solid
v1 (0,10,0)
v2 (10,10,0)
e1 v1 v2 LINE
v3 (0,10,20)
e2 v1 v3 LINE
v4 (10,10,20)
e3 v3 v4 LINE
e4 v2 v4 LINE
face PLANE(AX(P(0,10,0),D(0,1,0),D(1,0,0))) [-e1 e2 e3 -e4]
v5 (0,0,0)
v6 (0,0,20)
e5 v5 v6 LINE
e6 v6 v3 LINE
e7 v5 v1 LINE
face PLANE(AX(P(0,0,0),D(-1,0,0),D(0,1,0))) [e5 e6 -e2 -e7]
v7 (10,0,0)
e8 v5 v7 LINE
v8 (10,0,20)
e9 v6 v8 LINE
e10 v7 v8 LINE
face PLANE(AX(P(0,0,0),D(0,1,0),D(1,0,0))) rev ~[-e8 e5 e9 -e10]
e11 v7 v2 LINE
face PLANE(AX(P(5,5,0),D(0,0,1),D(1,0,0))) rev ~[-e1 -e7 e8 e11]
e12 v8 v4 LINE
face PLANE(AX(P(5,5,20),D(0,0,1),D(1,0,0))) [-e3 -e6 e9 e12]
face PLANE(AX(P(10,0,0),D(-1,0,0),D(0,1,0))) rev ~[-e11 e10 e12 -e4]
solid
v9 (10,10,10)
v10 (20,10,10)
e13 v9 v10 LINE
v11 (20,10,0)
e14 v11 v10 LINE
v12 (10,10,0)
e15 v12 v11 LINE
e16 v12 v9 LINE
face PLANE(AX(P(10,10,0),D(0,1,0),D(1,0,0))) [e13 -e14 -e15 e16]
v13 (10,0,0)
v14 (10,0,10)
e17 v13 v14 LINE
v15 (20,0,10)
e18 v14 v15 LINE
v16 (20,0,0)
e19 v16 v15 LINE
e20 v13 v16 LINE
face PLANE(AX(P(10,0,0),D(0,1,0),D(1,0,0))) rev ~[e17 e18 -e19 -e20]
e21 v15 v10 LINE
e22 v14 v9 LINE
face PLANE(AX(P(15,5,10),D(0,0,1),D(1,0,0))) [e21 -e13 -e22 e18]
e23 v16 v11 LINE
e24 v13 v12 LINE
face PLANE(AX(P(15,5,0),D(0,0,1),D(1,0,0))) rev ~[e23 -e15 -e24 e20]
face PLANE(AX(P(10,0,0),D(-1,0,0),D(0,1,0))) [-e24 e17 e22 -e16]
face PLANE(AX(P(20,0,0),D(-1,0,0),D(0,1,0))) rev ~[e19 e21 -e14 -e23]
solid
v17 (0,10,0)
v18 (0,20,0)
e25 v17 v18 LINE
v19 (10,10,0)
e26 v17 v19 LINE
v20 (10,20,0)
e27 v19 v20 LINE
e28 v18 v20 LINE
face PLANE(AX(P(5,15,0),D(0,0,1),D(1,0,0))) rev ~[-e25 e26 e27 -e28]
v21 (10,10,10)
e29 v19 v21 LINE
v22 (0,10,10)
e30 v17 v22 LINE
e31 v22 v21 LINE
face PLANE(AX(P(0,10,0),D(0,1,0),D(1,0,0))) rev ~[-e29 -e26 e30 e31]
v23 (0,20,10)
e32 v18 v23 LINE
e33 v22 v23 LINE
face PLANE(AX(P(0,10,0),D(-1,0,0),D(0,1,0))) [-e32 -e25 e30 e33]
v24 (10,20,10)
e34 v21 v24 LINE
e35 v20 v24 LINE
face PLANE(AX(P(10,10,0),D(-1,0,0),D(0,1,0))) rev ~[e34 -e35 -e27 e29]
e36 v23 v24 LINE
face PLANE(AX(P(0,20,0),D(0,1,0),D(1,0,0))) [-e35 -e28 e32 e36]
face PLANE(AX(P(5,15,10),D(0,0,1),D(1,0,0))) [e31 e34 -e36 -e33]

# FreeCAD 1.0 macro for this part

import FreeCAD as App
import Part
import Sketcher

V = App.Vector


def add_polygon(sketch, points):
    """Adds a closed chain of lines whose ends are joined by coincident constraints."""
    first, n = sketch.GeometryCount, len(points)
    for a, b in zip(points, points[1:] + points[:1]):
        sketch.addGeometry(Part.LineSegment(App.Vector(*a, 0), App.Vector(*b, 0)), False)
    for i in range(n):
        sketch.addConstraint(Sketcher.Constraint("Coincident", first + i, 2, first + (i + 1) % n, 1))

doc = App.newDocument("Part")
body = doc.addObject("PartDesign::Body", "Body")

# Sketch on XY plane
sketch1 = body.newObject("Sketcher::SketchObject", "Sketch")
sketch1.AttachmentSupport = (doc.getObject("XY_Plane"), [""])
sketch1.MapMode = "FlatFace"
add_polygon(sketch1, [(0, 10), (0, 0), (10, 0), (10, 10)])  # lines 0-3
sketch1.addConstraint([
    Sketcher.Constraint("Vertical", 0),
    Sketcher.Constraint("Horizontal", 1),
    Sketcher.Constraint("Vertical", 2),
    Sketcher.Constraint("Horizontal", 3),
    Sketcher.Constraint("Coincident", 0, 2, -1, 1),
    Sketcher.Constraint("Equal", 3, 0),
    Sketcher.Constraint("DistanceX", 1, 1, 1, 2, 10.0),
])
pad1 = body.newObject("PartDesign::Pad", "Pad")
pad1.Profile = sketch1
pad1.Length = 20
body2 = doc.addObject("PartDesign::Body", "Body001")

# Sketch on XY plane
sketch2 = body2.newObject("Sketcher::SketchObject", "Sketch001")
sketch2.AttachmentSupport = (doc.getObject("XY_Plane001"), [""])
sketch2.MapMode = "FlatFace"
add_polygon(sketch2, [(10, 10), (10, 0), (20, 0), (20, 10)])  # lines 0-3
sketch2.addConstraint([
    Sketcher.Constraint("Vertical", 0),
    Sketcher.Constraint("Horizontal", 1),
    Sketcher.Constraint("Vertical", 2),
    Sketcher.Constraint("Horizontal", 3),
    Sketcher.Constraint("PointOnObject", 0, 2, -1),
    Sketcher.Constraint("Equal", 3, 0),
    Sketcher.Constraint("DistanceX", 1, 1, 1, 2, 10.0),
    Sketcher.Constraint("DistanceX", -1, 1, 0, 2, 10.0),
])
pad2 = body2.newObject("PartDesign::Pad", "Pad001")
pad2.Profile = sketch2
pad2.Length = 10
body3 = doc.addObject("PartDesign::Body", "Body002")

# Sketch on XY plane
sketch3 = body3.newObject("Sketcher::SketchObject", "Sketch002")
sketch3.AttachmentSupport = (doc.getObject("XY_Plane002"), [""])
sketch3.MapMode = "FlatFace"
add_polygon(sketch3, [(0, 20), (0, 10), (10, 10), (10, 20)])  # lines 0-3
sketch3.addConstraint([
    Sketcher.Constraint("Vertical", 0),
    Sketcher.Constraint("Horizontal", 1),
    Sketcher.Constraint("Vertical", 2),
    Sketcher.Constraint("Horizontal", 3),
    Sketcher.Constraint("PointOnObject", 0, 2, -2),
    Sketcher.Constraint("Equal", 3, 0),
    Sketcher.Constraint("DistanceX", 1, 1, 1, 2, 10.0),
    Sketcher.Constraint("DistanceY", -1, 1, 0, 2, 10.0),
])
pad3 = body3.newObject("PartDesign::Pad", "Pad002")
pad3.Profile = sketch3
pad3.Length = 10

doc.recompute()
